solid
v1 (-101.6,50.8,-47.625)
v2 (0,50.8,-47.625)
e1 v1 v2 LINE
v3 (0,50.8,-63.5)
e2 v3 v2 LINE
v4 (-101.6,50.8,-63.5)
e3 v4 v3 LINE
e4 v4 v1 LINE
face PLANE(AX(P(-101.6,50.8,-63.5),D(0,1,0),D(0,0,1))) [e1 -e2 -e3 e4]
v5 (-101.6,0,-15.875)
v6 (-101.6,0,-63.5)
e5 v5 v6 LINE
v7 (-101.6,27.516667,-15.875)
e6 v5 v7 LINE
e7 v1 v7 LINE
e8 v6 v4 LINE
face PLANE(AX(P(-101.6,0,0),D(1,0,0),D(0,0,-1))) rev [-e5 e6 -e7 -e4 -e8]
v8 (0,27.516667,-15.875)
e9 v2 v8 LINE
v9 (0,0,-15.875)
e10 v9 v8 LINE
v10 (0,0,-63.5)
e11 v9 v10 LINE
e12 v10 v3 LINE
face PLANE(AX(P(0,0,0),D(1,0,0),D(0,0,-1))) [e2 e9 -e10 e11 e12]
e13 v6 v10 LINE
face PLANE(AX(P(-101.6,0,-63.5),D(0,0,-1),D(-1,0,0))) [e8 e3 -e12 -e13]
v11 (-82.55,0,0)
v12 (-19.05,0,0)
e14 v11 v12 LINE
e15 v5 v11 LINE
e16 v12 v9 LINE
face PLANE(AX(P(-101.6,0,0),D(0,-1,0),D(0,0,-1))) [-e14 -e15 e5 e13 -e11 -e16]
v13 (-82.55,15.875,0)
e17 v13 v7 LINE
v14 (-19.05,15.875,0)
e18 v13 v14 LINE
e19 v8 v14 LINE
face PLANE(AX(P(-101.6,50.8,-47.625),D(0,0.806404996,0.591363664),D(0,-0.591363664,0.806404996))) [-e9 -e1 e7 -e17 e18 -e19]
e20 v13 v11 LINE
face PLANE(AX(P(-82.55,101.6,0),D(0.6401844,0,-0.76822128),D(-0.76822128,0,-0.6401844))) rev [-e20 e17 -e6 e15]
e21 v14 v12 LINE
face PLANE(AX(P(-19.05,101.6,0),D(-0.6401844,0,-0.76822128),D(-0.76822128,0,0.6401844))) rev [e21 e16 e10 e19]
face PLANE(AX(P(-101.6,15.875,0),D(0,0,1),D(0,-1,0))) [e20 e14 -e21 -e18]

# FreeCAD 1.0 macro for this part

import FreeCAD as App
import Part
import Sketcher
from FreeCAD import Vector
Q = App.Units.Quantity

doc = App.newDocument("Part")
params = doc.addObject("Spreadsheet::Sheet", "Params")
for row, (alias, value) in enumerate([
    ("sketch1_width", "2 in"),
    ("sketch1_height", "2.5 in"),
    ("sketch1_width2", "0.625 in"),
    ("pad1_length", "4 in"),
    ("sketch2_width", "0.75 in"),
    ("sketch2_height", "0.625 in"),
    ("pocket1_length", "4 in"),
    ("sketch3_width", "0.75 in"),
    ("sketch3_height", "0.625 in"),
    ("pocket2_length", "4 in"),
], start=1):
    params.set(f"A{row}", alias)
    params.set(f"B{row}", "=" + value)
    params.setAlias(f"B{row}", alias)

body = doc.addObject("PartDesign::Body", "Body")

# Sketch on YZ plane
sketch1 = doc.addObject("Sketcher::SketchObject", "Sketch")
body.addObject(sketch1)
sketch1.AttachmentSupport = (doc.YZ_Plane, [""])
sketch1.MapMode = "FlatFace"
sketch1.addGeometry([
    Part.LineSegment(Vector(0, 0, 0), Vector(0, -63.5, 0)),  # 0
    Part.LineSegment(Vector(0, -63.5, 0), Vector(50.8, -63.5, 0)),  # 1
    Part.LineSegment(Vector(50.8, -63.5, 0), Vector(50.8, -47.625, 0)),  # 2
    Part.LineSegment(Vector(50.8, -47.625, 0), Vector(15.875, 0, 0)),  # 3
    Part.LineSegment(Vector(15.875, 0, 0), Vector(0, 0, 0)),  # 4
], False)
sketch1.addConstraint([
    Sketcher.Constraint("Coincident", 0, 2, 1, 1),
    Sketcher.Constraint("Coincident", 1, 2, 2, 1),
    Sketcher.Constraint("Coincident", 2, 2, 3, 1),
    Sketcher.Constraint("Coincident", 3, 2, 4, 1),
    Sketcher.Constraint("Coincident", 4, 2, 0, 1),
    Sketcher.Constraint("Vertical", 0),
    Sketcher.Constraint("Horizontal", 1),
    Sketcher.Constraint("Vertical", 2),
    Sketcher.Constraint("Horizontal", 4),
    Sketcher.Constraint("Coincident", 4, 2, -1, 1),
    Sketcher.Constraint("Equal", 4, 2),
    Sketcher.Constraint("DistanceX", 1, 1, 1, 2, Q("2 in")),
    Sketcher.Constraint("DistanceY", 0, 2, 0, 1, Q("2.5 in")),
    Sketcher.Constraint("DistanceX", 4, 2, 4, 1, Q("0.625 in")),
])
sketch1.setExpression("Constraints[11]", "Params.sketch1_width")
sketch1.setExpression("Constraints[12]", "Params.sketch1_height")
sketch1.setExpression("Constraints[13]", "Params.sketch1_width2")
pad1 = doc.addObject("PartDesign::Pad", "Pad")
body.addObject(pad1)
pad1.Profile = sketch1
pad1.setExpression("Length", "Params.pad1_length")
pad1.Reversed = True

# Sketch on XZ plane
sketch2 = doc.addObject("Sketcher::SketchObject", "Sketch001")
body.addObject(sketch2)
sketch2.AttachmentSupport = (doc.XZ_Plane, [""])
sketch2.MapMode = "FlatFace"
sketch2.addGeometry([
    Part.LineSegment(Vector(0, 0, 0), Vector(-19.05, 0, 0)),
    Part.LineSegment(Vector(-19.05, 0, 0), Vector(0, -15.875, 0)),
    Part.LineSegment(Vector(0, -15.875, 0), Vector(0, 0, 0)),
], False)
sketch2.addConstraint([
    Sketcher.Constraint("Coincident", 0, 2, 1, 1),
    Sketcher.Constraint("Coincident", 1, 2, 2, 1),
    Sketcher.Constraint("Coincident", 2, 2, 0, 1),
    Sketcher.Constraint("Horizontal", 0),
    Sketcher.Constraint("Vertical", 2),
    Sketcher.Constraint("Coincident", 2, 2, -1, 1),
    Sketcher.Constraint("DistanceX", 0, 2, 0, 1, Q("0.75 in")),
    Sketcher.Constraint("DistanceY", 2, 1, 2, 2, Q("0.625 in")),
])
sketch2.setExpression("Constraints[6]", "Params.sketch2_width")
sketch2.setExpression("Constraints[7]", "Params.sketch2_height")
pocket1 = doc.addObject("PartDesign::Pocket", "Pocket")
body.addObject(pocket1)
pocket1.Profile = sketch2
pocket1.setExpression("Length", "Params.pocket1_length")

# Sketch on XZ plane
sketch3 = doc.addObject("Sketcher::SketchObject", "Sketch002")
body.addObject(sketch3)
sketch3.AttachmentSupport = (doc.XZ_Plane, [""])
sketch3.MapMode = "FlatFace"
sketch3.addGeometry([
    Part.LineSegment(Vector(-82.55, 0, 0), Vector(-101.6, 0, 0)),
    Part.LineSegment(Vector(-101.6, 0, 0), Vector(-101.6, -15.875, 0)),
    Part.LineSegment(Vector(-101.6, -15.875, 0), Vector(-82.55, 0, 0)),
], False)
sketch3.addConstraint([
    Sketcher.Constraint("Coincident", 0, 2, 1, 1),
    Sketcher.Constraint("Coincident", 1, 2, 2, 1),
    Sketcher.Constraint("Coincident", 2, 2, 0, 1),
    Sketcher.Constraint("Horizontal", 0),
    Sketcher.Constraint("Vertical", 1),
    Sketcher.Constraint("PointOnObject", 0, 2, -1),
    Sketcher.Constraint("DistanceX", 0, 2, -1, 1, Q("4 in")),
    Sketcher.Constraint("DistanceX", 0, 2, 0, 1, Q("0.75 in")),
    Sketcher.Constraint("DistanceY", 1, 2, 1, 1, Q("0.625 in")),
])
sketch3.setExpression("Constraints[7]", "Params.sketch3_width")
sketch3.setExpression("Constraints[8]", "Params.sketch3_height")
pocket2 = doc.addObject("PartDesign::Pocket", "Pocket001")
body.addObject(pocket2)
pocket2.Profile = sketch3
pocket2.setExpression("Length", "Params.pocket2_length")

doc.recompute()
